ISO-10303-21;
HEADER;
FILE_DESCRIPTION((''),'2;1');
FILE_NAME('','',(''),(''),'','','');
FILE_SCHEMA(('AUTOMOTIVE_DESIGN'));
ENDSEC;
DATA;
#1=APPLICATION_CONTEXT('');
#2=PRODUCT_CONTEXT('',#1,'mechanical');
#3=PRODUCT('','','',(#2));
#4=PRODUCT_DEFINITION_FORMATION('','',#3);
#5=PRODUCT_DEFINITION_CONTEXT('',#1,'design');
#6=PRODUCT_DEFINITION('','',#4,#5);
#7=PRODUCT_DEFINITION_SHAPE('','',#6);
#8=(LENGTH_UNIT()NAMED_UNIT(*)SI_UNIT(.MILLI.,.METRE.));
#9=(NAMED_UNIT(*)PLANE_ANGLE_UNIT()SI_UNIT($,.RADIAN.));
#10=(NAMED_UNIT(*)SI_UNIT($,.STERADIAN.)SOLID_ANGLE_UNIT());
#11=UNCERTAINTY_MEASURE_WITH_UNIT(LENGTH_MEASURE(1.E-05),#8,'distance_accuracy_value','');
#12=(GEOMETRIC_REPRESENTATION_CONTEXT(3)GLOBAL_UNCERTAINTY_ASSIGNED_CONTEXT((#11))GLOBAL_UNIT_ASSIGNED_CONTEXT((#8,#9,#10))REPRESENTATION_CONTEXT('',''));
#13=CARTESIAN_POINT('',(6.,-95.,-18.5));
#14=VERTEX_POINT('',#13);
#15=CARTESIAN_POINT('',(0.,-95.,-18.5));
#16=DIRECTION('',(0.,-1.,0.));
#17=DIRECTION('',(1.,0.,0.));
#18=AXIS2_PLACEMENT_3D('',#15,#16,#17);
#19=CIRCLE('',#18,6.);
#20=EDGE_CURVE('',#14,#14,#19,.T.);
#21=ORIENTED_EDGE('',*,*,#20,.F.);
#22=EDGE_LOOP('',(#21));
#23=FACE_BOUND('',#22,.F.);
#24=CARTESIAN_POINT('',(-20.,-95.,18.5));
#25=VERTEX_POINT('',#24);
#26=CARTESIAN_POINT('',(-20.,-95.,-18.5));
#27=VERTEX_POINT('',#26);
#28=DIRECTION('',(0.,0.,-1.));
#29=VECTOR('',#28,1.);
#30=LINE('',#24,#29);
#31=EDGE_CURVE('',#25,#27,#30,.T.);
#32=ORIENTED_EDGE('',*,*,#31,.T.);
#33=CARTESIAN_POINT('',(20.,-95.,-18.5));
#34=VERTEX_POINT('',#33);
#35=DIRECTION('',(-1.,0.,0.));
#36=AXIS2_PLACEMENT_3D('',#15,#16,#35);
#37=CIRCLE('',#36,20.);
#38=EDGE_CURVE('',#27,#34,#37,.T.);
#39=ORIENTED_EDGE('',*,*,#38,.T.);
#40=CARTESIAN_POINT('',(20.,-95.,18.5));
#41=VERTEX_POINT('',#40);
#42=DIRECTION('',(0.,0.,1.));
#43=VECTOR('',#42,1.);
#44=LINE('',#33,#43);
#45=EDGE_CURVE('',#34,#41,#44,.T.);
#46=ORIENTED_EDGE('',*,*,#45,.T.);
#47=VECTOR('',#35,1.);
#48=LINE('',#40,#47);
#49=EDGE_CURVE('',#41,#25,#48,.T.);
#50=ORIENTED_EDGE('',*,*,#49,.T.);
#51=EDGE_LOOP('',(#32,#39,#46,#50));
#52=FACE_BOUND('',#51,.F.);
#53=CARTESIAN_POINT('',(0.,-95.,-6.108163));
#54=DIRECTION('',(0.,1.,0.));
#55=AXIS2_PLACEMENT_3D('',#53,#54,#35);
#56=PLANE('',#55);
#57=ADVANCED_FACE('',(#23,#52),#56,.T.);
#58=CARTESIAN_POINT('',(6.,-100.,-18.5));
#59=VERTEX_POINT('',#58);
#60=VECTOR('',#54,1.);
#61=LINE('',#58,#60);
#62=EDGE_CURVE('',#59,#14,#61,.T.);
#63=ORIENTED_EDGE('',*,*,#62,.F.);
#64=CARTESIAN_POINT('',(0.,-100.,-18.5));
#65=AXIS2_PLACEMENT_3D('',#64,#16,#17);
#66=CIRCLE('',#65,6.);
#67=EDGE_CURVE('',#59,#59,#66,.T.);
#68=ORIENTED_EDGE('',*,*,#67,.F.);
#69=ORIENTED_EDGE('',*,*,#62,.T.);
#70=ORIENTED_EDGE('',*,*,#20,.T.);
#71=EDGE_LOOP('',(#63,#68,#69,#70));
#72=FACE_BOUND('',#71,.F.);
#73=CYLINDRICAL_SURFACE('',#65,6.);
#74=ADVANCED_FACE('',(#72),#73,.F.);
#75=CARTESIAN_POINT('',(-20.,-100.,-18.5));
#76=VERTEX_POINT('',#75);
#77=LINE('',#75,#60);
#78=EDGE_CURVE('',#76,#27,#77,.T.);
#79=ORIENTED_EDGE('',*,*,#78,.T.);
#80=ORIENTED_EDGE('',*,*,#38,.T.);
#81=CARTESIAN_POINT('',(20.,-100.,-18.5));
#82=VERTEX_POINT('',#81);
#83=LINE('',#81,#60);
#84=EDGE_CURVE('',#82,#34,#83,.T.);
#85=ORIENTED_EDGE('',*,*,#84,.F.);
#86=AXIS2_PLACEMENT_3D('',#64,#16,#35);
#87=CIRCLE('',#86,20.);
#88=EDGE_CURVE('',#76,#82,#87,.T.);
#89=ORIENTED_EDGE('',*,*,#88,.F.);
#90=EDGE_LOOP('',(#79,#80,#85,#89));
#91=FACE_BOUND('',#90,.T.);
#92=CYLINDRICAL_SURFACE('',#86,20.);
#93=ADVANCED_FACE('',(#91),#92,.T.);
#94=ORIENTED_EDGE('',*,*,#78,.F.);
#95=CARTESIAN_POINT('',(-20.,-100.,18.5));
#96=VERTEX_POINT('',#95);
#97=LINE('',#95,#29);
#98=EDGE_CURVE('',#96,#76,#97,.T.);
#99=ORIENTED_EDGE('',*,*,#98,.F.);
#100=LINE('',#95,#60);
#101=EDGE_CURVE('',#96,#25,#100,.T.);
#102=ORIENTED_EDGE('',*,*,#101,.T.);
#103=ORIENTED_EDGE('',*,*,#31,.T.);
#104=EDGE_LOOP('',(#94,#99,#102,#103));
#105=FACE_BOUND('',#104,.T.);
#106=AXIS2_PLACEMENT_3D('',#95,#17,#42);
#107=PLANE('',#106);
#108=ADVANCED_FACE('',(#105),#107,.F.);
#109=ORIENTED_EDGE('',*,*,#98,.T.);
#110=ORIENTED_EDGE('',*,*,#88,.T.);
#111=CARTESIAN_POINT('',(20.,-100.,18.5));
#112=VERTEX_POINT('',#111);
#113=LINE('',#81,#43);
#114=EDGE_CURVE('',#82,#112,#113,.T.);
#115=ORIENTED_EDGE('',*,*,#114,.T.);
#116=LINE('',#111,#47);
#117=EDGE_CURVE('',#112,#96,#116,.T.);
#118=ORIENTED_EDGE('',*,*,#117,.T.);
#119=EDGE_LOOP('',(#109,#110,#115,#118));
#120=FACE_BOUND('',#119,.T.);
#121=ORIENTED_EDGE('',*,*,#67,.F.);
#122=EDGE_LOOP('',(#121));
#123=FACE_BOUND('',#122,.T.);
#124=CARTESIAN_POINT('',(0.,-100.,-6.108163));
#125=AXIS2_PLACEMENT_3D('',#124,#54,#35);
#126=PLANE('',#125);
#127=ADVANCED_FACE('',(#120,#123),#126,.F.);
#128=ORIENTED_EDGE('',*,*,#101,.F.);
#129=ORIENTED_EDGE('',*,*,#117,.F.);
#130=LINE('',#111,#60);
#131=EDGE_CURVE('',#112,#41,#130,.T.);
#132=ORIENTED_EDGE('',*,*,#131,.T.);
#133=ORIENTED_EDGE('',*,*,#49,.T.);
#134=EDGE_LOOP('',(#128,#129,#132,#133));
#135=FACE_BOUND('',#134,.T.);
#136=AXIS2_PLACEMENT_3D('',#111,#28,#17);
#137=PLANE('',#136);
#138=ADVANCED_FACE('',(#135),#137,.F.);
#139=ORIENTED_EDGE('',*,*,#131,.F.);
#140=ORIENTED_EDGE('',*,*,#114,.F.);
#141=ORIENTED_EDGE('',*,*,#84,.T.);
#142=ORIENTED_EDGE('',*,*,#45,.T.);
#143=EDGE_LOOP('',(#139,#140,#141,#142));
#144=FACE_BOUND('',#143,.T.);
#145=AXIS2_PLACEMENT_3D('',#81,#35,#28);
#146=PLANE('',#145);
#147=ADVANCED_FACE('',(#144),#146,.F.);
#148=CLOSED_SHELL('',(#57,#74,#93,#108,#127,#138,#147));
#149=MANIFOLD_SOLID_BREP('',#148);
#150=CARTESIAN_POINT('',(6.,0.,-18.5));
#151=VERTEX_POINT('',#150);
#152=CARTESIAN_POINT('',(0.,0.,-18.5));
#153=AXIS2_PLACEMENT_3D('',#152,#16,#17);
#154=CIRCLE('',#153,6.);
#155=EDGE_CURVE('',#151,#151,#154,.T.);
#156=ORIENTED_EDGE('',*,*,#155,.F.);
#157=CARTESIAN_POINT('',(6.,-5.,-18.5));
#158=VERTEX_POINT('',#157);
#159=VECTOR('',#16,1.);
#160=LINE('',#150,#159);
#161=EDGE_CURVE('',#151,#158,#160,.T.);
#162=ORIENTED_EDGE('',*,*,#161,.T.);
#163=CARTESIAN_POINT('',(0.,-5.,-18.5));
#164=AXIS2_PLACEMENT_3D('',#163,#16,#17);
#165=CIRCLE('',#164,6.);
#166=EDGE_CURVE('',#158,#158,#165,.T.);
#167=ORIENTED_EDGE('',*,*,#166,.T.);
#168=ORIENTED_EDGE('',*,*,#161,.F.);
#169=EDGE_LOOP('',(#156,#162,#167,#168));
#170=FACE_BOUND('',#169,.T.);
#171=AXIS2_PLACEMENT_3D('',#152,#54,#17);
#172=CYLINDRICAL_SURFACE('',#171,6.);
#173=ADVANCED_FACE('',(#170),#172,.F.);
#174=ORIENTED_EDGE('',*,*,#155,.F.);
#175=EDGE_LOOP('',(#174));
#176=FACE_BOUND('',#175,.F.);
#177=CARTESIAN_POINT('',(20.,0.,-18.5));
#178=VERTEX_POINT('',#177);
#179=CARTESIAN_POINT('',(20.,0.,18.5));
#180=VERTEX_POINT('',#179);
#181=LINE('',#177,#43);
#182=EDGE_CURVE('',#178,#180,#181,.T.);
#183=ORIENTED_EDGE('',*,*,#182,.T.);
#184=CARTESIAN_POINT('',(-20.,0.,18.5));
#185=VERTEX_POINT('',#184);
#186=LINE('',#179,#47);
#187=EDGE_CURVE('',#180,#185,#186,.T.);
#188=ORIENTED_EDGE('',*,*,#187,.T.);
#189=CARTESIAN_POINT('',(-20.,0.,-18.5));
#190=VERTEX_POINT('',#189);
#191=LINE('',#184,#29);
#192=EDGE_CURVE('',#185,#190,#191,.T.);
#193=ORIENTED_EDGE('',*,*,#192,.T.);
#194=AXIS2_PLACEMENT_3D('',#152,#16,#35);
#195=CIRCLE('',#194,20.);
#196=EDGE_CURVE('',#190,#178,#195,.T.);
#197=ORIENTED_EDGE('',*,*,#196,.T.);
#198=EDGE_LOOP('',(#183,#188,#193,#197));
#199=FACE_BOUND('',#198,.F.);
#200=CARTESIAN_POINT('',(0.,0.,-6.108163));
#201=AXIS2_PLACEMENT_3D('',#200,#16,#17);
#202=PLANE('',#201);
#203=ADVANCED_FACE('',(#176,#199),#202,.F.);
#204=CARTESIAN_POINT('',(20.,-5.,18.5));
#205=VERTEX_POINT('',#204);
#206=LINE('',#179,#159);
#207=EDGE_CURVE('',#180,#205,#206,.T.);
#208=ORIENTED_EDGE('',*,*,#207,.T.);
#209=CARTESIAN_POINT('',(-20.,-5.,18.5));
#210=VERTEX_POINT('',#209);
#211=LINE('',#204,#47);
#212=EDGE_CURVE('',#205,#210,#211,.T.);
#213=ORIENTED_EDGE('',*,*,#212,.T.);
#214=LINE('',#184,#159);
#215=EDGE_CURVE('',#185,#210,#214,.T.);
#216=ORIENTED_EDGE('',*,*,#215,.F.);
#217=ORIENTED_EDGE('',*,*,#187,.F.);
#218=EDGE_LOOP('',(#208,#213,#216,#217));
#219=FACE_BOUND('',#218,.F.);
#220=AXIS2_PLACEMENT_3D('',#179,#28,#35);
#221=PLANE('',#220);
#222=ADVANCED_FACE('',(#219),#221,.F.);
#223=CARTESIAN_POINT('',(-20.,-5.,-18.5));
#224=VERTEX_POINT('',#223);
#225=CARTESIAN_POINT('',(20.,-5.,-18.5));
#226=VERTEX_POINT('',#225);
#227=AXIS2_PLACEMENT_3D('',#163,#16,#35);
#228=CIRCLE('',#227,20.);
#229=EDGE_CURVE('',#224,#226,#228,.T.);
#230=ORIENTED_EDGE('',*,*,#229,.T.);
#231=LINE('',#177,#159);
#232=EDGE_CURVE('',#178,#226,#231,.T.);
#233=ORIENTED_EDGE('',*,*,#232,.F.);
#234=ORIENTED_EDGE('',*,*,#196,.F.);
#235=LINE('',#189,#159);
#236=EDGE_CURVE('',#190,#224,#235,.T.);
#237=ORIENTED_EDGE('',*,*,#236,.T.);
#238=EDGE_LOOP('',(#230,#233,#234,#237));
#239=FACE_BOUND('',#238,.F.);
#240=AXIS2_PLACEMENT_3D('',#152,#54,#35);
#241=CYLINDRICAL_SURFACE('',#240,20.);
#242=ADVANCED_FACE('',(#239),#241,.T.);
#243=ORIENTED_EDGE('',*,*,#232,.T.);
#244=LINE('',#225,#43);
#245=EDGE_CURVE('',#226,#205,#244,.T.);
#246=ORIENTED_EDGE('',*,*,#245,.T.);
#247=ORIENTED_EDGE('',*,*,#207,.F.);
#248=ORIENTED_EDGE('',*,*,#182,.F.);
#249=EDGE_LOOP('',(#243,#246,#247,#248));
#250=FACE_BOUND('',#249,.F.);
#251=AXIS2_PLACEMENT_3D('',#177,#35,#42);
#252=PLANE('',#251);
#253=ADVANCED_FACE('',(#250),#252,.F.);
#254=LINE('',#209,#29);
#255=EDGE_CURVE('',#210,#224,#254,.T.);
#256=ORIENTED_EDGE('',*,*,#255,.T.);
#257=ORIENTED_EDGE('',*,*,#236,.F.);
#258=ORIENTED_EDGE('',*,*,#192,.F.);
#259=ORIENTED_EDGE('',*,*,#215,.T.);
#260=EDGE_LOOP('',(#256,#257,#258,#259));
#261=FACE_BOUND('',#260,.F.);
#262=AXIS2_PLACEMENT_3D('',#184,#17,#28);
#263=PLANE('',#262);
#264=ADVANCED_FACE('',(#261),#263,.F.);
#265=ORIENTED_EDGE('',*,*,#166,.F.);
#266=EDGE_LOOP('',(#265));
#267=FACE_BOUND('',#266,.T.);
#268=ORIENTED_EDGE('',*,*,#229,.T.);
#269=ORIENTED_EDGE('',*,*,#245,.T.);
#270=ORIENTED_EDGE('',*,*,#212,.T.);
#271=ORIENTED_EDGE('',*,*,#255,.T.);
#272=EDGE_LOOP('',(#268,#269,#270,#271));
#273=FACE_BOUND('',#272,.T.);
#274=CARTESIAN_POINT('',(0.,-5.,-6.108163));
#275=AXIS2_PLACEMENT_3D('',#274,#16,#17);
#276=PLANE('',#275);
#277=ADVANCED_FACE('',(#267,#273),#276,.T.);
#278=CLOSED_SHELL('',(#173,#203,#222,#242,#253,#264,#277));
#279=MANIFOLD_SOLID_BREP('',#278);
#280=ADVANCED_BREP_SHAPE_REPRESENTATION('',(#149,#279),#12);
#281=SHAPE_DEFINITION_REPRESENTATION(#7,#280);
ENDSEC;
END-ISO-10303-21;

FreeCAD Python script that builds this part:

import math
import FreeCAD as App
import Part
import Sketcher
from FreeCAD import Vector
Q = App.Units.Quantity

doc = App.newDocument("Part")
body = doc.addObject("PartDesign::Body", "Body")

# Sketch on XZ plane
sketch1 = doc.addObject("Sketcher::SketchObject", "Sketch")
body.addObject(sketch1)
sketch1.AttachmentSupport = (doc.XZ_Plane, [""])
sketch1.MapMode = "FlatFace"
sketch1.addGeometry([
    Part.LineSegment(Vector(20, -18, 0), Vector(20, 18, 0)),  # 0
    Part.LineSegment(Vector(20, 18, 0), Vector(-20, 18, 0)),  # 1
    Part.LineSegment(Vector(-20, 18, 0), Vector(-20, -18, 0)),  # 2
    Part.ArcOfCircle(Part.Circle(Vector(0, -18, 0), Vector(0, 0, 1), 20), math.radians(180), math.radians(360)),  # 3
    Part.Circle(Vector(0, -18, 0), Vector(0, 0, 1), 6),  # 4
], False)
sketch1.addConstraint([
    Sketcher.Constraint("Coincident", 0, 2, 1, 1),
    Sketcher.Constraint("Coincident", 1, 2, 2, 1),
    Sketcher.Constraint("Tangent", 2, 2, 3, 1),
    Sketcher.Constraint("Tangent", 3, 2, 0, 1),
    Sketcher.Constraint("Vertical", 0),
    Sketcher.Constraint("Horizontal", 1),
    Sketcher.Constraint("Vertical", 2),
    Sketcher.Constraint("Coincident", 4, 3, 3, 3),
    Sketcher.Constraint("Symmetric", 0, 2, 2, 2, -1, 1),
    Sketcher.Constraint("Diameter", 4, Q("12 mm")),
    Sketcher.Constraint("Radius", 3, Q("20 mm")),
    Sketcher.Constraint("DistanceY", 0, 1, 0, 2, Q("37 mm")),
])
pad1 = doc.addObject("PartDesign::Pad", "Pad")
body.addObject(pad1)
pad1.Profile = sketch1
pad1.Length = 5
body2 = doc.addObject("PartDesign::Body", "Body001")
doc.recompute()

mirroring = doc.addObject("Part::Mirroring", "Mirroring")
mirroring.Source = body
mirroring.Base = Vector(0, -50, 0)
mirroring.Normal = Vector(0, -1, 0)
body2.BaseFeature = mirroring
doc.recompute()
mirroring.Visibility = False

doc.recompute()
